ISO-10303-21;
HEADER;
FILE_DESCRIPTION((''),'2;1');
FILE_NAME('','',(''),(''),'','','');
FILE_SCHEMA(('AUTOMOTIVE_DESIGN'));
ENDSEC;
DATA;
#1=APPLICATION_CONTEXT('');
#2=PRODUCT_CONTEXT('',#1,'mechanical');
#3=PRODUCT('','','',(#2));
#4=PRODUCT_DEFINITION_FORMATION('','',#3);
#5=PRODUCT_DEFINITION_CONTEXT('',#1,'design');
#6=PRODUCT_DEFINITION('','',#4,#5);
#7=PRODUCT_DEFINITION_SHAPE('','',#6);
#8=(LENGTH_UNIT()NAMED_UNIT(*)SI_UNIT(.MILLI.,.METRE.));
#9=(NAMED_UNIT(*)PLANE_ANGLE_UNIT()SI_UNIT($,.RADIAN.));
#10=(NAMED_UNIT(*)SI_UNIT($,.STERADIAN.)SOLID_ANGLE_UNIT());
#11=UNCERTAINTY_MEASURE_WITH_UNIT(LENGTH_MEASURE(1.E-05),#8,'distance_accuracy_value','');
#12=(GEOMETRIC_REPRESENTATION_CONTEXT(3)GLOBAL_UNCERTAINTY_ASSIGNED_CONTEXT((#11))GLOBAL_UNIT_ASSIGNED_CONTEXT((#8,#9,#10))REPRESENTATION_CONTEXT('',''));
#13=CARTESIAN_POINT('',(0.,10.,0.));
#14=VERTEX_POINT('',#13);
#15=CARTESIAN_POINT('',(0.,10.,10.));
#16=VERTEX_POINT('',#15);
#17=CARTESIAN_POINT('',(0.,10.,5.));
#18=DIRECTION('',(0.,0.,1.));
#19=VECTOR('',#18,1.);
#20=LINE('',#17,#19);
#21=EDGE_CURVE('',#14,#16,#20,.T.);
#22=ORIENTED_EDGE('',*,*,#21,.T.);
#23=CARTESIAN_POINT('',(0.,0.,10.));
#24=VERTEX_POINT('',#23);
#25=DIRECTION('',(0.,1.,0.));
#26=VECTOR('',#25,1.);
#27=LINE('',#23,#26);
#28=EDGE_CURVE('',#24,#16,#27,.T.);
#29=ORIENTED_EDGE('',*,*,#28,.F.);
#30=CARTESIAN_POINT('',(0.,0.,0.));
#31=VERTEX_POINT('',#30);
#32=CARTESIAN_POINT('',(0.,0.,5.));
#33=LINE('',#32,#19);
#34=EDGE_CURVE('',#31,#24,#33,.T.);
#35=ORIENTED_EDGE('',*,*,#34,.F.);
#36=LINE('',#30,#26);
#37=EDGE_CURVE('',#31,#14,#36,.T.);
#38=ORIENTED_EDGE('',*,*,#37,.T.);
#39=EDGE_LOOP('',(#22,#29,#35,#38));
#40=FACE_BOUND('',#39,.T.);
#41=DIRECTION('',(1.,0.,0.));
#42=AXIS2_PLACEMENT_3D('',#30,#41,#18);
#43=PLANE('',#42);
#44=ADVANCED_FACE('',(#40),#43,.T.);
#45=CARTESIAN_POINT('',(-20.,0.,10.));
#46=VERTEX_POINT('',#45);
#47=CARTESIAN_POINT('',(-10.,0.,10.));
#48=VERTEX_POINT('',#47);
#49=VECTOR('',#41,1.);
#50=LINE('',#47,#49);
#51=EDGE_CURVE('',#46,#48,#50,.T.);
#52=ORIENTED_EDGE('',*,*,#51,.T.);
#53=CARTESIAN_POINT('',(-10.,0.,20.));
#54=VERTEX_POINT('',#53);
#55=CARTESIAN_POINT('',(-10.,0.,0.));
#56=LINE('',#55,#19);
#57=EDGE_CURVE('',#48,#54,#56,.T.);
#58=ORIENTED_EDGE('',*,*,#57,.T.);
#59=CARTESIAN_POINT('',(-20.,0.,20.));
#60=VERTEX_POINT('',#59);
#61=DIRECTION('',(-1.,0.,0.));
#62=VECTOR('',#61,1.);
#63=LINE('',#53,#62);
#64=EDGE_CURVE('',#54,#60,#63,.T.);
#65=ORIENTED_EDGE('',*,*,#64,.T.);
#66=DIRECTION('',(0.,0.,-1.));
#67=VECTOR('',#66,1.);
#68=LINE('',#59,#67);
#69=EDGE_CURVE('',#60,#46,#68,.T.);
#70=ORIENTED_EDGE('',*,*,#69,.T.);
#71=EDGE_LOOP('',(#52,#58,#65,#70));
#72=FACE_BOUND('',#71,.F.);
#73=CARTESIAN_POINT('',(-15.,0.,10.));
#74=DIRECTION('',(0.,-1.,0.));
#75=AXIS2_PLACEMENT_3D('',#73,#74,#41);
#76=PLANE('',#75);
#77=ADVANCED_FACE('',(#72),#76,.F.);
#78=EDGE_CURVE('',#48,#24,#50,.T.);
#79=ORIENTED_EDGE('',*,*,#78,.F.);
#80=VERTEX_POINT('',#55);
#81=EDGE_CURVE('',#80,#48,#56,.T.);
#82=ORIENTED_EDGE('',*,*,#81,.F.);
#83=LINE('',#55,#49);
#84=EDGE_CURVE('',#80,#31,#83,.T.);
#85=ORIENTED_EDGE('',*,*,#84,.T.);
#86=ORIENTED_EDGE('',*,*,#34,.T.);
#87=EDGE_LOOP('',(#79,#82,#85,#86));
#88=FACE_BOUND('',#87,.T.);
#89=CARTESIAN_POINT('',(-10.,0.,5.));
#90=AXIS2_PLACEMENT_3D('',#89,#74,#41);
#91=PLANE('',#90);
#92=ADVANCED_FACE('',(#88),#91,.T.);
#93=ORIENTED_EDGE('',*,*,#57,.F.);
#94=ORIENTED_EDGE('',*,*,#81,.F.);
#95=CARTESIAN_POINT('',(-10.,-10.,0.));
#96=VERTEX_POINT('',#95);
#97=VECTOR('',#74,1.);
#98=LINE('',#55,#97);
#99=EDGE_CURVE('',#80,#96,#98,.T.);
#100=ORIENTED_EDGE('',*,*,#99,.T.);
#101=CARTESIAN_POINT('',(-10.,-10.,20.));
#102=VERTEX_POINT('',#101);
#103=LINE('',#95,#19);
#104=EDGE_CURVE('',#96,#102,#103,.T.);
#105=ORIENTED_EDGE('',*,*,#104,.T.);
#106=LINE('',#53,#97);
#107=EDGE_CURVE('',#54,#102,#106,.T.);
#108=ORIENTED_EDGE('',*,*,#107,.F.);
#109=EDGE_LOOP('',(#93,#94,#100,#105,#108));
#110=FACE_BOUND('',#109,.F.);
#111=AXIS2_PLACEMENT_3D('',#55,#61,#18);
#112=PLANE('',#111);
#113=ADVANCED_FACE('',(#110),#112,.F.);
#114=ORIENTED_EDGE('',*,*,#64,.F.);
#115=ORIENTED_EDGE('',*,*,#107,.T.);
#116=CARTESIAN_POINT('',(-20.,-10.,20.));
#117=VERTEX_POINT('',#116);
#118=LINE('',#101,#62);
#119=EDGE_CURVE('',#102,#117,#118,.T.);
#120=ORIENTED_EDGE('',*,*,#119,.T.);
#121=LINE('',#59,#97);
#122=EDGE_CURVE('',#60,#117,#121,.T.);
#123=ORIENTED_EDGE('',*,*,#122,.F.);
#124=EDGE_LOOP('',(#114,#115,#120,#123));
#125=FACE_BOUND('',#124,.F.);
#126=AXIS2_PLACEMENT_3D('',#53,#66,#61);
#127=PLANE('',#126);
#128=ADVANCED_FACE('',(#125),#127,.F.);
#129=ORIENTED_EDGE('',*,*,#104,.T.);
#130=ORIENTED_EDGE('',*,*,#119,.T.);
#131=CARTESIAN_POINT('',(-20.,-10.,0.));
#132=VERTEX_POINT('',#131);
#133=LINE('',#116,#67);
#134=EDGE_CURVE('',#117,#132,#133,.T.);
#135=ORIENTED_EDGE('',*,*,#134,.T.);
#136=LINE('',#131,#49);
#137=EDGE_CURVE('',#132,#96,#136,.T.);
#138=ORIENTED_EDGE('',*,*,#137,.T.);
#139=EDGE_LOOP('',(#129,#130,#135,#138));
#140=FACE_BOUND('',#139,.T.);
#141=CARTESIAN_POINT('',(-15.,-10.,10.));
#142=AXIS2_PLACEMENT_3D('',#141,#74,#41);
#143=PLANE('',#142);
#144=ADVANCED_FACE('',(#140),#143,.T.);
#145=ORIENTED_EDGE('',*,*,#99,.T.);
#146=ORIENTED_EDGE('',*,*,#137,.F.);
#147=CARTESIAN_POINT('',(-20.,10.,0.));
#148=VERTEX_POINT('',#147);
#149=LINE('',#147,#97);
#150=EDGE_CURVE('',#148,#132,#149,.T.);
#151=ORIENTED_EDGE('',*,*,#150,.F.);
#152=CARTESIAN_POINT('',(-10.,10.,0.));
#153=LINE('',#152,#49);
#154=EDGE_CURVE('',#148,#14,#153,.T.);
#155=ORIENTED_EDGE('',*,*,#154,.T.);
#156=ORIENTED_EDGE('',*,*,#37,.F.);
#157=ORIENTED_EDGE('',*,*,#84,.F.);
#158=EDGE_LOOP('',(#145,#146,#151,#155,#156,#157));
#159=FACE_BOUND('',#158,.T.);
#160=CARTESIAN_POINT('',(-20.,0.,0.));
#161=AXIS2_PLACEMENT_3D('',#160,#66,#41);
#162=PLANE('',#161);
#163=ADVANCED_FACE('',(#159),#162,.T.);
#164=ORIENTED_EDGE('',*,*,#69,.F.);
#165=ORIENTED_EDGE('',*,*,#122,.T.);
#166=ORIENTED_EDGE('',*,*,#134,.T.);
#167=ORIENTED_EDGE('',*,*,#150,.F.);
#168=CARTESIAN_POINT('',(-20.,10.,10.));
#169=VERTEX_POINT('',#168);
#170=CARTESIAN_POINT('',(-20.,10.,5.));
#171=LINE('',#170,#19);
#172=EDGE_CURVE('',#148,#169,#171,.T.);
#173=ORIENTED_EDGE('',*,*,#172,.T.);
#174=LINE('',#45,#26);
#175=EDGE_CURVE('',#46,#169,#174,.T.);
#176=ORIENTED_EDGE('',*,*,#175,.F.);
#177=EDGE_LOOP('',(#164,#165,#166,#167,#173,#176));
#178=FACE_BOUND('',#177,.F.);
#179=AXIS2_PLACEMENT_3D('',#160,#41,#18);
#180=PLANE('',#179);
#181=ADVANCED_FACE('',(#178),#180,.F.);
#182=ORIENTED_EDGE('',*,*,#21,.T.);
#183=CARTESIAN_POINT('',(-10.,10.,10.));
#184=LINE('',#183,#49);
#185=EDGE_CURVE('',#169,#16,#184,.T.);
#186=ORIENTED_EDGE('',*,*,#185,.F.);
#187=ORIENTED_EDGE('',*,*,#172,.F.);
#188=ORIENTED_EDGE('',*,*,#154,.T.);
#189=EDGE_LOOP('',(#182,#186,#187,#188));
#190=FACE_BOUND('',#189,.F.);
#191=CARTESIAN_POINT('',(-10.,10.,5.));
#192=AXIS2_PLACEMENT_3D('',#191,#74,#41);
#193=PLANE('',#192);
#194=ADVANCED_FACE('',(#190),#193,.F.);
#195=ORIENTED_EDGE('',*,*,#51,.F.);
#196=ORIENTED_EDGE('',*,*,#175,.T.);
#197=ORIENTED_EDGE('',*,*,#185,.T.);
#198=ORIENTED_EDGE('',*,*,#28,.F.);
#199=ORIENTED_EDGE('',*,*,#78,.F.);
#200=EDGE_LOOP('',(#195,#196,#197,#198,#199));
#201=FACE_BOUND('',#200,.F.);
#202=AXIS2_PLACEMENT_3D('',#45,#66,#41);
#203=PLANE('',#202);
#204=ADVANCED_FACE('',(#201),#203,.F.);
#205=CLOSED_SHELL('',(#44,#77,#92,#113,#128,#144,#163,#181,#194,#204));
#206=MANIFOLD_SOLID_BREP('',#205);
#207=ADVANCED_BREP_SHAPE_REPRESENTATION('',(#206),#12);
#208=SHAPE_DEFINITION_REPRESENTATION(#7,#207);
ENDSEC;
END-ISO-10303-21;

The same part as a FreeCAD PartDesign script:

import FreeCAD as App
import Part
import Sketcher
from FreeCAD import Vector


def add_polygon(sketch, points):
    """Adds a closed chain of lines whose ends are joined by coincident constraints."""
    first, n = sketch.GeometryCount, len(points)
    for a, b in zip(points, points[1:] + points[:1]):
        sketch.addGeometry(Part.LineSegment(App.Vector(*a, 0), App.Vector(*b, 0)), False)
    for i in range(n):
        sketch.addConstraint(Sketcher.Constraint("Coincident", first + i, 2, first + (i + 1) % n, 1))

doc = App.newDocument("Part")
params = doc.addObject("Spreadsheet::Sheet", "Params")
for row, (alias, value) in enumerate([
    ("sketch1_width", "10 mm"),
    ("sketch1_height", "20 mm"),
    ("pad1_length", "10 mm"),
    ("sketch2_width", "20 mm"),
    ("sketch2_height", "10 mm"),
    ("pad2_length", "10 mm"),
], start=1):
    params.set(f"A{row}", alias)
    params.set(f"B{row}", "=" + value)
    params.setAlias(f"B{row}", alias)

body = doc.addObject("PartDesign::Body", "Body")

# Sketch on XZ plane
sketch1 = doc.addObject("Sketcher::SketchObject", "Sketch")
body.addObject(sketch1)
sketch1.AttachmentSupport = (doc.XZ_Plane, [""])
sketch1.MapMode = "FlatFace"
add_polygon(sketch1, [(-10, 20), (-20, 20), (-20, 0), (-10, 0)])  # lines 0-3
sketch1.addConstraint(Sketcher.Constraint("Horizontal", 0))
sketch1.addConstraint(Sketcher.Constraint("Vertical", 1))
sketch1.addConstraint(Sketcher.Constraint("Horizontal", 2))
sketch1.addConstraint(Sketcher.Constraint("Vertical", 3))
sketch1.addConstraint(Sketcher.Constraint("PointOnObject", 1, 2, -1))
sketch1.addConstraint(Sketcher.Constraint("DistanceX", 0, 2, 0, 1, 10.0))
sketch1.addConstraint(Sketcher.Constraint("DistanceY", 1, 2, 1, 1, 20.0))
sketch1.addConstraint(Sketcher.Constraint("DistanceX", 0, 2, -1, 1, 20.0))
sketch1.setExpression("Constraints[9]", "Params.sketch1_width")
sketch1.setExpression("Constraints[10]", "Params.sketch1_height")
pad1 = doc.addObject("PartDesign::Pad", "Pad")
body.addObject(pad1)
pad1.Profile = sketch1
pad1.setExpression("Length", "Params.pad1_length")

# Sketch on XZ plane
sketch2 = doc.addObject("Sketcher::SketchObject", "Sketch001")
body.addObject(sketch2)
sketch2.AttachmentSupport = (doc.XZ_Plane, [""])
sketch2.MapMode = "FlatFace"
add_polygon(sketch2, [(-20, 10), (-20, 0), (0, 0), (0, 10)])  # lines 0-3
sketch2.addConstraint(Sketcher.Constraint("Vertical", 0))
sketch2.addConstraint(Sketcher.Constraint("Horizontal", 1))
sketch2.addConstraint(Sketcher.Constraint("Vertical", 2))
sketch2.addConstraint(Sketcher.Constraint("Horizontal", 3))
sketch2.addConstraint(Sketcher.Constraint("Coincident", 1, 2, -1, 1))
sketch2.addConstraint(Sketcher.Constraint("DistanceX", 1, 1, 1, 2, 20.0))
sketch2.addConstraint(Sketcher.Constraint("DistanceY", 0, 2, 0, 1, 10.0))
sketch2.setExpression("Constraints[9]", "Params.sketch2_width")
sketch2.setExpression("Constraints[10]", "Params.sketch2_height")
pad2 = doc.addObject("PartDesign::Pad", "Pad001")
body.addObject(pad2)
pad2.Profile = sketch2
pad2.setExpression("Length", "Params.pad2_length")
pad2.Reversed = True

doc.recompute()
